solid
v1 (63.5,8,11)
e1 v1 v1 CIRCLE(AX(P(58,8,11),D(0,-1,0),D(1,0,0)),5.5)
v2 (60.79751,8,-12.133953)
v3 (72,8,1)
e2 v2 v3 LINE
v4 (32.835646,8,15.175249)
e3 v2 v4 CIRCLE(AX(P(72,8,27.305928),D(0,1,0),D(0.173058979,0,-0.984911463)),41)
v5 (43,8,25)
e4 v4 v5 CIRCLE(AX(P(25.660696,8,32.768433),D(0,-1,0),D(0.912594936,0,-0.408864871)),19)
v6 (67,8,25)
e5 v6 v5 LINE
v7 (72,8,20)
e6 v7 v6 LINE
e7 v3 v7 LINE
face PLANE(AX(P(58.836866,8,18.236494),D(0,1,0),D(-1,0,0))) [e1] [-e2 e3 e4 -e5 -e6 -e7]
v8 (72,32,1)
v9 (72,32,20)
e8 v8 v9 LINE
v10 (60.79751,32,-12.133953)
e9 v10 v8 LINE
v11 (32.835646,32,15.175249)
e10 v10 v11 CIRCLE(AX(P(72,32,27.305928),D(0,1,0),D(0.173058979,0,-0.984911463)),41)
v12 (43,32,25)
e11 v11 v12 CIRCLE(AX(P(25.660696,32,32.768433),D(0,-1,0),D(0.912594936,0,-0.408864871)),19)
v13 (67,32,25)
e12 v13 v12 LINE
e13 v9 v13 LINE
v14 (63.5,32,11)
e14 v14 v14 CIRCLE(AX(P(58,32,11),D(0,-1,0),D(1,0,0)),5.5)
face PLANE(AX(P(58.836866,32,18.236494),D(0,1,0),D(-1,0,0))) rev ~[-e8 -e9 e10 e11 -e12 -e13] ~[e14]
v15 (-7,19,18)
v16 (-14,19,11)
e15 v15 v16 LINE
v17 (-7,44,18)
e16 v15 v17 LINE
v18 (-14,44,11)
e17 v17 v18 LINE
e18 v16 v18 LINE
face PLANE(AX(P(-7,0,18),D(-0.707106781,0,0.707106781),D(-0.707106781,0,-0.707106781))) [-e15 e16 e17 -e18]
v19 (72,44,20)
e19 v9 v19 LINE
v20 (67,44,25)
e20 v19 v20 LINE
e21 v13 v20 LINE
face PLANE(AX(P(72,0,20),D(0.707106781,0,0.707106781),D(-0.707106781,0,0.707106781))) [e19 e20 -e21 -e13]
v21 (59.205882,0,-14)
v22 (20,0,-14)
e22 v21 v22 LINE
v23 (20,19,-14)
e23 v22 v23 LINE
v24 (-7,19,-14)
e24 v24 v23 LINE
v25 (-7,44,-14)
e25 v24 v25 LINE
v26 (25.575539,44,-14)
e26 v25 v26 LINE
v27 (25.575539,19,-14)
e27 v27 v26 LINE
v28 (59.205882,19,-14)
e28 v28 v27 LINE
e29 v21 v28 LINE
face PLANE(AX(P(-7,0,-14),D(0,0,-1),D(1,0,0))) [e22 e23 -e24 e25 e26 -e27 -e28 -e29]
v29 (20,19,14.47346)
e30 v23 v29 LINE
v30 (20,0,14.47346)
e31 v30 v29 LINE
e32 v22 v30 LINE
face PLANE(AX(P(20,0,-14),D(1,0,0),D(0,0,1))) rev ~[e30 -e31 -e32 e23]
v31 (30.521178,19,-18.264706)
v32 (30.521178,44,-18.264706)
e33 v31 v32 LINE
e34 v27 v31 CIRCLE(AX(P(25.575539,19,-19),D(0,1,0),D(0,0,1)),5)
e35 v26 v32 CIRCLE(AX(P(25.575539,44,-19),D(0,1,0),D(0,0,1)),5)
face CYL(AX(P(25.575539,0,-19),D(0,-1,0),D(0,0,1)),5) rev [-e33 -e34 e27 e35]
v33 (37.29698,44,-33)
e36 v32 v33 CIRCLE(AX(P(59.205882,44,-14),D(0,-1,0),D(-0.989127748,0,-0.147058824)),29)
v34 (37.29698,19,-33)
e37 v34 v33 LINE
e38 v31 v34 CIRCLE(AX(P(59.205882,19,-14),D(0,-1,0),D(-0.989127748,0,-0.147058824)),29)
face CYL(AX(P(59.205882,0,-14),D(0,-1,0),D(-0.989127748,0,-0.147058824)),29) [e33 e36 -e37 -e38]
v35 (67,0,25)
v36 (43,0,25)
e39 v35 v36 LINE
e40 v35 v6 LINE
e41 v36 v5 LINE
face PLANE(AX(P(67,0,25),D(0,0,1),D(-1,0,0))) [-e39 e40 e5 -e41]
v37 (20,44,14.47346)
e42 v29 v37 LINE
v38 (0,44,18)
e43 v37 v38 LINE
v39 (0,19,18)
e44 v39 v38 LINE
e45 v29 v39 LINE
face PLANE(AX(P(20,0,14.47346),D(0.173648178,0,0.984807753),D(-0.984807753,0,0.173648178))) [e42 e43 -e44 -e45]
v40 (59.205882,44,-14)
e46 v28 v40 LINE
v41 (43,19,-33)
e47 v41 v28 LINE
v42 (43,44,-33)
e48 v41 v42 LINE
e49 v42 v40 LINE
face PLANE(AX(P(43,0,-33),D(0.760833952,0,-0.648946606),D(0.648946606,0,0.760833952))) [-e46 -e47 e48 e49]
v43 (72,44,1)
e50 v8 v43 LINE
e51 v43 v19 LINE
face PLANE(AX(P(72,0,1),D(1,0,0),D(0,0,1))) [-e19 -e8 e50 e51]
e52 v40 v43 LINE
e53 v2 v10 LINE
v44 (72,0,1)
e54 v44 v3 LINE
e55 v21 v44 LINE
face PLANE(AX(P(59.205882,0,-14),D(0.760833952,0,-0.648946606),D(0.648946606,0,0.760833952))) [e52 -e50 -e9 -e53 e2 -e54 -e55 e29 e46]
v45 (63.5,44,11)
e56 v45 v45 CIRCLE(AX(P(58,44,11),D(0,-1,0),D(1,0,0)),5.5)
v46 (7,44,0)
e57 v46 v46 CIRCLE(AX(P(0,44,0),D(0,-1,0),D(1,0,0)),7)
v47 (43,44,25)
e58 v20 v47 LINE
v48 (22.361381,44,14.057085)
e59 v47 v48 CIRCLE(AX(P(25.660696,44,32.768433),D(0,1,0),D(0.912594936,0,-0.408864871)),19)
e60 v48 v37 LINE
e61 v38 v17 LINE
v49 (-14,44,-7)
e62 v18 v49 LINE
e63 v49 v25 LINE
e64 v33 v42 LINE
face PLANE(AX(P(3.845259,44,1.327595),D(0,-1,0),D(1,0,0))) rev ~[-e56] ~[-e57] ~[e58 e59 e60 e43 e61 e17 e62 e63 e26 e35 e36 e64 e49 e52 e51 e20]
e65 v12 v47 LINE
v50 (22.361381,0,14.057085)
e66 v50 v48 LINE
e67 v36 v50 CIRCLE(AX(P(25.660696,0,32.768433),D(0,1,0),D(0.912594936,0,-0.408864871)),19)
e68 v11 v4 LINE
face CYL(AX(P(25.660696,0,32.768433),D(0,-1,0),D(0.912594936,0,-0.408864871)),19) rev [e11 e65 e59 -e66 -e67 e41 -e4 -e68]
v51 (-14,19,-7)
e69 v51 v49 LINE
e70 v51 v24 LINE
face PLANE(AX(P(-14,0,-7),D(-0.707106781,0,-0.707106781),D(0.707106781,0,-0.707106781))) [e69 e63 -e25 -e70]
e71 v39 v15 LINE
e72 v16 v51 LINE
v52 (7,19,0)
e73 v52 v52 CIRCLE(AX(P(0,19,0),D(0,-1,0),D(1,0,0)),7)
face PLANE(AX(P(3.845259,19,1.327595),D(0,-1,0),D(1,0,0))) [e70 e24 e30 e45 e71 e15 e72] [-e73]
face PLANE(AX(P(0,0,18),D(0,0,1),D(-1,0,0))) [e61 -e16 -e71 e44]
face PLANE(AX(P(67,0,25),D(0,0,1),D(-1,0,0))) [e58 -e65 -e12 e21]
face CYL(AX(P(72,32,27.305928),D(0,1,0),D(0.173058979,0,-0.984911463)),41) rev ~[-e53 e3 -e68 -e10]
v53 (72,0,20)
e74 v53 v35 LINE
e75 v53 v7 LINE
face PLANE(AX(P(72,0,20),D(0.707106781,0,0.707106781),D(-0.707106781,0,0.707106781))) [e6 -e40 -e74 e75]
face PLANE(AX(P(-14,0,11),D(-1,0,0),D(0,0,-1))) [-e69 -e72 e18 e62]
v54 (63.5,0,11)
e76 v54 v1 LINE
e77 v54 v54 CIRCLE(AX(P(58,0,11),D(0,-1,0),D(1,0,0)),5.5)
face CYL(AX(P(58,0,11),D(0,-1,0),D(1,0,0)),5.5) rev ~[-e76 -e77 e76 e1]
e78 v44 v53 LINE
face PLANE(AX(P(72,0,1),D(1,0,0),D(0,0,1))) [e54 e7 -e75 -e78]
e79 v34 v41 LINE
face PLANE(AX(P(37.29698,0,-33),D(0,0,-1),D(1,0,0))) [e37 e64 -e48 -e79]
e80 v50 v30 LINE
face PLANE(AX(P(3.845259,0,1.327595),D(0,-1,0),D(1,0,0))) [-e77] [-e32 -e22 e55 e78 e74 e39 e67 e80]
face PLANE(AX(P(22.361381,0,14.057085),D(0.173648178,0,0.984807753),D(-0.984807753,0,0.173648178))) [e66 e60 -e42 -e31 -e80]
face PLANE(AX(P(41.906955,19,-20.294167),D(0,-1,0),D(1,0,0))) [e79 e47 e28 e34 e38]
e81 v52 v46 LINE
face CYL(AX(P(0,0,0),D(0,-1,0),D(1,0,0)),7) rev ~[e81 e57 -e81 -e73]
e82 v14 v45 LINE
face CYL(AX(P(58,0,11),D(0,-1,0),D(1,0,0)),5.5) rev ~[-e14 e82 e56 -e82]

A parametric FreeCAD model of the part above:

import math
import FreeCAD as App
import Part
import Sketcher

V = App.Vector
Q = App.Units.Quantity

doc = App.newDocument("Part")
body = doc.addObject("PartDesign::Body", "Body")

# Sketch on XZ plane
sketch1 = body.newObject("Sketcher::SketchObject", "Sketch")
sketch1.AttachmentSupport = (doc.getObject("XZ_Plane"), [""])
sketch1.MapMode = "FlatFace"
sketch1.addGeometry([
    Part.LineSegment(V(-14, 11, 0), V(-14, -7, 0)),  # 0
    Part.LineSegment(V(-14, -7, 0), V(-7, -14, 0)),  # 1
    Part.LineSegment(V(-7, -14, 0), V(25.6, -14, 0)),  # 2
    Part.ArcOfCircle(Part.Circle(V(25.6, -19, 0), V(0, 0, 1), 5), math.radians(8), math.radians(90)),  # 3
    Part.ArcOfCircle(Part.Circle(V(59.2, -14, 0), V(0, 0, 1), 29), math.radians(-172), math.radians(-139)),  # 4
    Part.LineSegment(V(37.3, -33, 0), V(43, -33, 0)),  # 5
    Part.LineSegment(V(43, -33, 0), V(59.2, -14, 0)),  # 6
    Part.LineSegment(V(59.2, -14, 0), V(72, 1, 0)),  # 7
    Part.LineSegment(V(72, 1, 0), V(72, 20, 0)),  # 8
    Part.LineSegment(V(72, 20, 0), V(67, 25, 0)),  # 9
    Part.LineSegment(V(67, 25, 0), V(43, 25, 0)),  # 10
    Part.ArcOfCircle(Part.Circle(V(25.7, 32.8, 0), V(0, 0, 1), 19), math.radians(-100), math.radians(-24)),  # 11
    Part.LineSegment(V(22.4, 14.1, 0), V(20, 14.5, 0)),  # 12
    Part.LineSegment(V(20, 14.5, 0), V(0, 18, 0)),  # 13
    Part.LineSegment(V(0, 18, 0), V(-7, 18, 0)),  # 14
    Part.LineSegment(V(-7, 18, 0), V(-14, 11, 0)),  # 15
    Part.Circle(V(0, 0, 0), V(0, 0, 1), 7),  # 16
    Part.Circle(V(58, 11, 0), V(0, 0, 1), 5.5),  # 17
], False)
sketch1.addConstraint([
    Sketcher.Constraint("Coincident", 0, 2, 1, 1),
    Sketcher.Constraint("Coincident", 1, 2, 2, 1),
    Sketcher.Constraint("Tangent", 2, 2, 3, 2),
    Sketcher.Constraint("Tangent", 3, 1, 4, 1),
    Sketcher.Constraint("Coincident", 4, 2, 5, 1),
    Sketcher.Constraint("Coincident", 5, 2, 6, 1),
    Sketcher.Constraint("Coincident", 6, 2, 7, 1),
    Sketcher.Constraint("Coincident", 7, 2, 8, 1),
    Sketcher.Constraint("Coincident", 8, 2, 9, 1),
    Sketcher.Constraint("Coincident", 9, 2, 10, 1),
    Sketcher.Constraint("Coincident", 10, 2, 11, 2),
    Sketcher.Constraint("Tangent", 11, 1, 12, 1),
    Sketcher.Constraint("Coincident", 12, 2, 13, 1),
    Sketcher.Constraint("Coincident", 13, 2, 14, 1),
    Sketcher.Constraint("Coincident", 14, 2, 15, 1),
    Sketcher.Constraint("Coincident", 15, 2, 0, 1),
    Sketcher.Constraint("Vertical", 0),
    Sketcher.Constraint("Horizontal", 2),
    Sketcher.Constraint("Horizontal", 5),
    Sketcher.Constraint("Vertical", 8),
    Sketcher.Constraint("Horizontal", 10),
    Sketcher.Constraint("Horizontal", 14),
    Sketcher.Constraint("Coincident", 16, 3, -1, 1),
    Sketcher.Constraint("Coincident", 6, 2, 4, 3),
    Sketcher.Constraint("PointOnObject", 13, 2, -2),
    Sketcher.Constraint("Parallel", 6, 7),
    Sketcher.Constraint("Parallel", 1, 9),
    Sketcher.Constraint("Parallel", 12, 13),
    Sketcher.Constraint("Perpendicular", 9, 15),
    Sketcher.Constraint("Horizontal", 4, 3, 1, 2),
    Sketcher.Constraint("Horizontal", 17, 3, 15, 2),
    Sketcher.Constraint("Vertical", 5, 2, 10, 2),
    Sketcher.Constraint("Vertical", 1, 2, 14, 2),
    Sketcher.Constraint("Equal", 1, 15),
    Sketcher.Constraint("Diameter", 16, 14.0),
    Sketcher.Constraint("Diameter", 17, 11.0),
    Sketcher.Constraint("Radius", 3, 5.0),
    Sketcher.Constraint("Radius", 4, 29.0),
    Sketcher.Constraint("Radius", 11, 19.0),
    Sketcher.Constraint("DistanceX", 10, 2, 10, 1, 24.0),
    Sketcher.Constraint("DistanceX", 14, 2, 14, 1, 7.0),
    Sketcher.Constraint("DistanceY", 0, 2, 0, 1, 18.0),
    Sketcher.Constraint("DistanceY", 8, 1, 8, 2, 19.0),
    Sketcher.Constraint("Angle", 12, Q("170 deg")),
    Sketcher.Constraint("DistanceY", 3, 3, -1, 1, 19.0),
    Sketcher.Constraint("DistanceX", -1, 1, 17, 3, 58.0),
    Sketcher.Constraint("DistanceY", -1, 1, 17, 3, 11.0),
    Sketcher.Constraint("DistanceY", 4, 2, -1, 1, 33.0),
    Sketcher.Constraint("DistanceX", -1, 1, 5, 2, 43.0),
    Sketcher.Constraint("DistanceX", -1, 1, 7, 2, 72.0),
    Sketcher.Constraint("DistanceY", -1, 1, 7, 2, 1.0),
    Sketcher.Constraint("DistanceX", -1, 1, 12, 2, 20.0),
])
pad1 = body.newObject("PartDesign::Pad", "Pad")
pad1.Profile = sketch1
pad1.Length = 44
pad1.Reversed = True

# Sketch on XZ plane
sketch2 = body.newObject("Sketcher::SketchObject", "Sketch001")
sketch2.AttachmentSupport = (doc.getObject("XZ_Plane"), [""])
sketch2.MapMode = "FlatFace"
sketch2.addGeometry([
    Part.LineSegment(V(-14, 11, 0), V(-14, -7, 0)),  # 0
    Part.LineSegment(V(-14, -7, 0), V(-7, -14, 0)),  # 1
    Part.LineSegment(V(-7, -14, 0), V(20, -14, 0)),  # 2
    Part.LineSegment(V(20, -14, 0), V(20, 14, 0)),  # 3
    Part.LineSegment(V(20, 14, 0), V(0, 18, 0)),  # 4
    Part.LineSegment(V(0, 18, 0), V(-7, 18, 0)),  # 5
    Part.LineSegment(V(-7, 18, 0), V(-14, 11, 0)),  # 6
    Part.Circle(V(0, 0, 0), V(0, 0, 1), 7),  # 7
], False)
sketch2.addConstraint([
    Sketcher.Constraint("Coincident", 0, 2, 1, 1),
    Sketcher.Constraint("Coincident", 1, 2, 2, 1),
    Sketcher.Constraint("Coincident", 2, 2, 3, 1),
    Sketcher.Constraint("Coincident", 3, 2, 4, 1),
    Sketcher.Constraint("Coincident", 4, 2, 5, 1),
    Sketcher.Constraint("Coincident", 5, 2, 6, 1),
    Sketcher.Constraint("Coincident", 6, 2, 0, 1),
    Sketcher.Constraint("Vertical", 0),
    Sketcher.Constraint("Horizontal", 2),
    Sketcher.Constraint("Vertical", 3),
    Sketcher.Constraint("Horizontal", 5),
    Sketcher.Constraint("Coincident", 7, 3, -1, 1),
    Sketcher.Constraint("PointOnObject", 4, 2, -2),
    Sketcher.Constraint("Perpendicular", 1, 6),
    Sketcher.Constraint("Vertical", 1, 2, 5, 2),
    Sketcher.Constraint("Equal", 1, 6),
    Sketcher.Constraint("Diameter", 7, 14.0),
    Sketcher.Constraint("DistanceX", 2, 1, 2, 2, 27.0),
    Sketcher.Constraint("DistanceX", 5, 2, 5, 1, 7.0),
    Sketcher.Constraint("DistanceY", 0, 2, 0, 1, 18.0),
    Sketcher.Constraint("Angle", 4, Q("170 deg")),
    Sketcher.Constraint("DistanceX", 0, 2, -1, 1, 14.0),
    Sketcher.Constraint("DistanceY", 0, 2, -1, 1, 7.0),
])
pocket1 = body.newObject("PartDesign::Pocket", "Pocket")
pocket1.Profile = sketch2
pocket1.Length = 19

# Sketch on XZ plane
sketch3 = body.newObject("Sketcher::SketchObject", "Sketch002")
sketch3.AttachmentSupport = (doc.getObject("XZ_Plane"), [""])
sketch3.MapMode = "FlatFace"
sketch3.AttachmentOffset = App.Placement(V(0, 0, -32), App.Rotation())
sketch3.addGeometry([
    Part.LineSegment(V(79, 43, 0), V(79, -13, 0)),
    Part.ArcOfCircle(Part.Circle(V(72, 27, 0), V(0, 0, 1), 41), math.radians(156), math.radians(280)),
    Part.LineSegment(V(34, 44, 0), V(79, 43, 0)),
], False)
sketch3.addConstraint([
    Sketcher.Constraint("Coincident", 0, 2, 1, 2),
    Sketcher.Constraint("Coincident", 1, 1, 2, 1),
    Sketcher.Constraint("Coincident", 2, 2, 0, 1),
    Sketcher.Constraint("Vertical", 0),
    Sketcher.Constraint("Radius", 1, 41.0),
    Sketcher.Constraint("DistanceX", -1, 1, 1, 3, 72.0),
    Sketcher.Constraint("DistanceY", 2, 2, 1, 1, 0.819998),
    Sketcher.Constraint("DistanceY", 0, 2, 0, 1, 55.923385),
    Sketcher.Constraint("DistanceX", -1, 1, 0, 2, 79.095418),
    Sketcher.Constraint("DistanceY", -1, 1, 1, 1, 43.667941),
])
pocket2 = body.newObject("PartDesign::Pocket", "Pocket001")
pocket2.Profile = sketch3
pocket2.Length = 24
pocket2.Reversed = True

# Sketch on XZ plane
sketch4 = body.newObject("Sketcher::SketchObject", "Sketch003")
sketch4.AttachmentSupport = (doc.getObject("XZ_Plane"), [""])
sketch4.MapMode = "FlatFace"
sketch4.addGeometry([
    Part.LineSegment(V(59, -14, 0), V(26, -14, 0)),  # 0
    Part.ArcOfCircle(Part.Circle(V(26, -19, 0), V(0, 0, 1), 5), math.radians(8), math.radians(90)),  # 1
    Part.ArcOfCircle(Part.Circle(V(59, -14, 0), V(0, 0, 1), 29), math.radians(-172), math.radians(-139)),  # 2
    Part.LineSegment(V(37, -33, 0), V(43, -33, 0)),  # 3
    Part.LineSegment(V(43, -33, 0), V(59, -14, 0)),  # 4
], False)
sketch4.addConstraint([
    Sketcher.Constraint("Tangent", 0, 2, 1, 2),
    Sketcher.Constraint("Tangent", 1, 1, 2, 1),
    Sketcher.Constraint("Coincident", 2, 2, 3, 1),
    Sketcher.Constraint("Coincident", 3, 2, 4, 1),
    Sketcher.Constraint("Coincident", 4, 2, 0, 1),
    Sketcher.Constraint("Horizontal", 0),
    Sketcher.Constraint("Horizontal", 3),
    Sketcher.Constraint("Coincident", 4, 2, 2, 3),
    Sketcher.Constraint("Radius", 1, 5.0),
    Sketcher.Constraint("Radius", 2, 29.0),
    Sketcher.Constraint("DistanceY", 1, 3, -1, 1, 19.0),
    Sketcher.Constraint("DistanceY", 2, 2, -1, 1, 33.0),
    Sketcher.Constraint("DistanceX", -1, 1, 3, 2, 43.0),
    Sketcher.Constraint("DistanceX", 3, 1, 3, 2, 5.70302),
])
pocket3 = body.newObject("PartDesign::Pocket", "Pocket002")
pocket3.Profile = sketch4
pocket3.Length = 19

doc.recompute()
